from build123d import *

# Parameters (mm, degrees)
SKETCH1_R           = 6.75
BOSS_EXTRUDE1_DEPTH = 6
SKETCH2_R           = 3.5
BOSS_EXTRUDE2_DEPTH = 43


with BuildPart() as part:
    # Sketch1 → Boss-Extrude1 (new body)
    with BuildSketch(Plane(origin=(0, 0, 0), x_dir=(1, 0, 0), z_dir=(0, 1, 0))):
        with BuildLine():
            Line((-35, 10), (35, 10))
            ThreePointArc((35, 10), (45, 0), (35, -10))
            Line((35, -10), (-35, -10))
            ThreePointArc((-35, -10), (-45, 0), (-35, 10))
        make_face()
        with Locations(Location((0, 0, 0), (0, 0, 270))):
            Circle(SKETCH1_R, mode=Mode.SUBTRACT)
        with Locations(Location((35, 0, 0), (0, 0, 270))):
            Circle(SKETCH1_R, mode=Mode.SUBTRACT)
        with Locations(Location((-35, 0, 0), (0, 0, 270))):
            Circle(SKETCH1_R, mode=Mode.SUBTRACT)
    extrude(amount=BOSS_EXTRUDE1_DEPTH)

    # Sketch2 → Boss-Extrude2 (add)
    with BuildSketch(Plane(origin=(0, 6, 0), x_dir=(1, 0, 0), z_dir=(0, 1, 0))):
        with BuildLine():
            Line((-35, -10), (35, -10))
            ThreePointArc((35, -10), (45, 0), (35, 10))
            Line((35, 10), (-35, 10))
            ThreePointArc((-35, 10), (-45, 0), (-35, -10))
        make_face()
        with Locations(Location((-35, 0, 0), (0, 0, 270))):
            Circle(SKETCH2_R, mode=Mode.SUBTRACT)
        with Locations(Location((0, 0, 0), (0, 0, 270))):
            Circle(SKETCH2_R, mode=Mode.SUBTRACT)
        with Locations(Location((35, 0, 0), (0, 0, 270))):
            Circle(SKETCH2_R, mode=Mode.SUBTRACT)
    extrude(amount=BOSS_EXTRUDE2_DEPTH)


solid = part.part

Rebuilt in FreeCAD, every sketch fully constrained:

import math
import FreeCAD as App
import Part
import Sketcher

V = App.Vector
Q = App.Units.Quantity

doc = App.newDocument("Part")
body = doc.addObject("PartDesign::Body", "Body")

# Sketch on XZ plane
sketch1 = body.newObject("Sketcher::SketchObject", "Sketch")
sketch1.AttachmentSupport = (doc.getObject("XZ_Plane"), [""])
sketch1.MapMode = "FlatFace"
sketch1.addGeometry([
    Part.LineSegment(V(35, -10, 0), V(-35, -10, 0)),  # 0
    Part.ArcOfCircle(Part.Circle(V(-35, 0, 0), V(0, 0, 1), 10), math.radians(90), math.radians(270)),  # 1
    Part.LineSegment(V(-35, 10, 0), V(35, 10, 0)),  # 2
    Part.ArcOfCircle(Part.Circle(V(35, 0, 0), V(0, 0, 1), 10), math.radians(-90), math.radians(90)),  # 3
    Part.Circle(V(35, 0, 0), V(0, 0, 1), 7),  # 4
    Part.Circle(V(0, 0, 0), V(0, 0, 1), 7),  # 5
    Part.Circle(V(-35, 0, 0), V(0, 0, 1), 7),  # 6
], False)
sketch1.addConstraint([
    Sketcher.Constraint("Tangent", 0, 2, 1, 2),
    Sketcher.Constraint("Tangent", 1, 1, 2, 1),
    Sketcher.Constraint("Tangent", 2, 2, 3, 2),
    Sketcher.Constraint("Tangent", 3, 1, 0, 1),
    Sketcher.Constraint("Horizontal", 0),
    Sketcher.Constraint("Horizontal", 2),
    Sketcher.Constraint("Coincident", 5, 3, -1, 1),
    Sketcher.Constraint("Coincident", 4, 3, 3, 3),
    Sketcher.Constraint("Coincident", 6, 3, 1, 3),
    Sketcher.Constraint("Equal", 4, 5),
    Sketcher.Constraint("Equal", 5, 6),
    Sketcher.Constraint("Symmetric", 1, 3, 3, 3, -1, 1),
    Sketcher.Constraint("Radius", 1, Q("10 mm")),
    Sketcher.Constraint("Diameter", 4, Q("13.5 mm")),
    Sketcher.Constraint("DistanceX", 0, 2, 0, 1, Q("70 mm")),
])
pad1 = body.newObject("PartDesign::Pad", "Pad")
pad1.Profile = sketch1
pad1.Length = 6
pad1.Reversed = True

# Sketch on XZ plane
sketch2 = body.newObject("Sketcher::SketchObject", "Sketch001")
sketch2.AttachmentSupport = (doc.getObject("XZ_Plane"), [""])
sketch2.MapMode = "FlatFace"
sketch2.AttachmentOffset = App.Placement(V(0, 0, -6), App.Rotation())
sketch2.addGeometry([
    Part.LineSegment(V(-35, 10, 0), V(35, 10, 0)),  # 0
    Part.ArcOfCircle(Part.Circle(V(35, 0, 0), V(0, 0, 1), 10), math.radians(-90), math.radians(90)),  # 1
    Part.LineSegment(V(35, -10, 0), V(-35, -10, 0)),  # 2
    Part.ArcOfCircle(Part.Circle(V(-35, 0, 0), V(0, 0, 1), 10), math.radians(90), math.radians(270)),  # 3
    Part.Circle(V(-35, 0, 0), V(0, 0, 1), 3.5),  # 4
    Part.Circle(V(0, 0, 0), V(0, 0, 1), 3.5),  # 5
    Part.Circle(V(35, 0, 0), V(0, 0, 1), 3.5),  # 6
], False)
sketch2.addConstraint([
    Sketcher.Constraint("Tangent", 0, 2, 1, 2),
    Sketcher.Constraint("Tangent", 1, 1, 2, 1),
    Sketcher.Constraint("Tangent", 2, 2, 3, 2),
    Sketcher.Constraint("Tangent", 3, 1, 0, 1),
    Sketcher.Constraint("Horizontal", 0),
    Sketcher.Constraint("Horizontal", 2),
    Sketcher.Constraint("Coincident", 5, 3, -1, 1),
    Sketcher.Constraint("Coincident", 4, 3, 3, 3),
    Sketcher.Constraint("Coincident", 6, 3, 1, 3),
    Sketcher.Constraint("Equal", 4, 5),
    Sketcher.Constraint("Equal", 5, 6),
    Sketcher.Constraint("Symmetric", 1, 3, 3, 3, -1, 1),
    Sketcher.Constraint("Diameter", 4, Q("7 mm")),
    Sketcher.Constraint("Radius", 1, Q("10 mm")),
    Sketcher.Constraint("DistanceX", 0, 1, 0, 2, Q("70 mm")),
])
pad2 = body.newObject("PartDesign::Pad", "Pad001")
pad2.Profile = sketch2
pad2.Length = 43
pad2.Reversed = True

doc.recompute()
